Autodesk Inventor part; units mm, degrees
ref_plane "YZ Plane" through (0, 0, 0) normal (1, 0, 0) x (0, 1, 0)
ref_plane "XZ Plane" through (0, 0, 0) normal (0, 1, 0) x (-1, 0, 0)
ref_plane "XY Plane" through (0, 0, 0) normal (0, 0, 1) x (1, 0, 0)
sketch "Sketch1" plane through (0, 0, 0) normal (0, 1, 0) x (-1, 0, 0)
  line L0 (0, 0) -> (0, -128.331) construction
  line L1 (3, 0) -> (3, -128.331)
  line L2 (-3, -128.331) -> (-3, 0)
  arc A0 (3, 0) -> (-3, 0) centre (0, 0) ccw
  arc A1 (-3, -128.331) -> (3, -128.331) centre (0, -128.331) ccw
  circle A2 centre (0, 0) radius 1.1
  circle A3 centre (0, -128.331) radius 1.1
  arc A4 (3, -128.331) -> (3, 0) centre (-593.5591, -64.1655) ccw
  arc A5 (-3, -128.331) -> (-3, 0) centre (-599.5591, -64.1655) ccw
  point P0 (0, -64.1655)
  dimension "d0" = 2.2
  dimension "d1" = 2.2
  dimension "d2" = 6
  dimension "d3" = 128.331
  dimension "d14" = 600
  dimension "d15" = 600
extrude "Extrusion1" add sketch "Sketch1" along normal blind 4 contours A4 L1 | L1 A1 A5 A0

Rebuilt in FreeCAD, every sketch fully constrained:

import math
import FreeCAD as App
import Part
import Sketcher

doc = App.newDocument("Part")
params = doc.addObject("Spreadsheet::Sheet", "Params")
for row, (alias, value) in enumerate([
    ("sketch1_radius", "600 mm"),
    ("sketch1_radius2", "3 mm"),
    ("sketch1_diameter", "2.2 mm"),
    ("pad1_length", "4 mm"),
], start=1):
    params.set(f"A{row}", alias)
    params.set(f"B{row}", "=" + value)
    params.setAlias(f"B{row}", alias)

body = doc.addObject("PartDesign::Body", "Body")

# Sketch on XZ plane
sketch1 = doc.addObject("Sketcher::SketchObject", "Sketch")
body.addObject(sketch1)
sketch1.AttachmentSupport = (doc.XZ_Plane, [""])
sketch1.MapMode = "FlatFace"
sketch1.addGeometry([
    Part.ArcOfCircle(Part.Circle(App.Vector(593.5591, -64.1655, 0), App.Vector(0, 0, 1), 599.999976), math.radians(173.860906), math.radians(186.139094)),  # 0
    Part.ArcOfCircle(Part.Circle(App.Vector(0, 0, 0), App.Vector(0, 0, 1), 3), math.radians(0), math.radians(180)),  # 1
    Part.ArcOfCircle(Part.Circle(App.Vector(599.5591, -64.1655, 0), App.Vector(0, 0, 1), 599.999976), math.radians(173.860906), math.radians(186.139094)),  # 2
    Part.ArcOfCircle(Part.Circle(App.Vector(0, -128.331, 0), App.Vector(0, 0, 1), 3), math.radians(180), math.radians(360)),  # 3
    Part.Circle(App.Vector(0, 0, 0), App.Vector(0, 0, 1), 1.1),  # 4
    Part.Circle(App.Vector(0, -128.331, 0), App.Vector(0, 0, 1), 1.1),  # 5
], False)
sketch1.addConstraint([
    Sketcher.Constraint("Coincident", 0, 1, 1, 2),
    Sketcher.Constraint("Coincident", 1, 1, 2, 1),
    Sketcher.Constraint("Coincident", 2, 2, 3, 2),
    Sketcher.Constraint("Coincident", 3, 1, 0, 2),
    Sketcher.Constraint("Coincident", 1, 3, -1, 1),
    Sketcher.Constraint("Coincident", 4, 3, -1, 1),
    Sketcher.Constraint("Coincident", 5, 3, 3, 3),
    Sketcher.Constraint("Equal", 0, 2),
    Sketcher.Constraint("Equal", 1, 3),
    Sketcher.Constraint("Equal", 4, 5),
    Sketcher.Constraint("Symmetric", 2, 2, 3, 1, -2),
    Sketcher.Constraint("PointOnObject", 0, 1, -1),
    Sketcher.Constraint("PointOnObject", 1, 1, -1),
    Sketcher.Constraint("Horizontal", 5, 3, 2, 2),
    Sketcher.Constraint("Radius", 0, 600.0),
    Sketcher.Constraint("Radius", 1, 3.0),
    Sketcher.Constraint("Diameter", 4, 2.2),
    Sketcher.Constraint("DistanceY", 3, 3, -1, 1, 128.331),
])
sketch1.setExpression("Constraints[14]", "Params.sketch1_radius")
sketch1.setExpression("Constraints[15]", "Params.sketch1_radius2")
sketch1.setExpression("Constraints[16]", "Params.sketch1_diameter")
pad1 = doc.addObject("PartDesign::Pad", "Pad")
body.addObject(pad1)
pad1.Profile = sketch1
pad1.setExpression("Length", "Params.pad1_length")
pad1.Reversed = True

doc.recompute()
